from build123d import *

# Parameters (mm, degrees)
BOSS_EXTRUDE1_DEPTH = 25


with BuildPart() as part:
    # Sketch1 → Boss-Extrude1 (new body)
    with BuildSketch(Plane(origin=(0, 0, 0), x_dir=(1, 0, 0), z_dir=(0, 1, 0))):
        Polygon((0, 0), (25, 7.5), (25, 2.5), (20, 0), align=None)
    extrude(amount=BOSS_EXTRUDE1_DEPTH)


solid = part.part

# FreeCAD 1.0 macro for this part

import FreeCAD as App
import Part
import Sketcher

V = App.Vector

doc = App.newDocument("Part")
body = doc.addObject("PartDesign::Body", "Body")

# Sketch on XZ plane
sketch1 = body.newObject("Sketcher::SketchObject", "Sketch")
sketch1.AttachmentSupport = (doc.getObject("XZ_Plane"), [""])
sketch1.MapMode = "FlatFace"
sketch1.addGeometry([
    Part.LineSegment(V(25, -8, 0), V(0, 0, 0)),
    Part.LineSegment(V(0, 0, 0), V(20, 0, 0)),
    Part.LineSegment(V(20, 0, 0), V(25, -2, 0)),
    Part.LineSegment(V(25, -2, 0), V(25, -8, 0)),
], False)
sketch1.addConstraint([
    Sketcher.Constraint("Coincident", 0, 2, 1, 1),
    Sketcher.Constraint("Coincident", 1, 2, 2, 1),
    Sketcher.Constraint("Coincident", 2, 2, 3, 1),
    Sketcher.Constraint("Coincident", 3, 2, 0, 1),
    Sketcher.Constraint("Horizontal", 1),
    Sketcher.Constraint("Vertical", 3),
    Sketcher.Constraint("Coincident", 0, 2, -1, 1),
    Sketcher.Constraint("DistanceX", 1, 1, 1, 2, 20.0),
    Sketcher.Constraint("DistanceY", 3, 2, 3, 1, 5.0),
    Sketcher.Constraint("DistanceX", -1, 1, 2, 2, 25.0),
    Sketcher.Constraint("DistanceY", 2, 2, -1, 1, 2.5),
])
pad1 = body.newObject("PartDesign::Pad", "Pad")
pad1.Profile = sketch1
pad1.Length = 25
pad1.Reversed = True

doc.recompute()
